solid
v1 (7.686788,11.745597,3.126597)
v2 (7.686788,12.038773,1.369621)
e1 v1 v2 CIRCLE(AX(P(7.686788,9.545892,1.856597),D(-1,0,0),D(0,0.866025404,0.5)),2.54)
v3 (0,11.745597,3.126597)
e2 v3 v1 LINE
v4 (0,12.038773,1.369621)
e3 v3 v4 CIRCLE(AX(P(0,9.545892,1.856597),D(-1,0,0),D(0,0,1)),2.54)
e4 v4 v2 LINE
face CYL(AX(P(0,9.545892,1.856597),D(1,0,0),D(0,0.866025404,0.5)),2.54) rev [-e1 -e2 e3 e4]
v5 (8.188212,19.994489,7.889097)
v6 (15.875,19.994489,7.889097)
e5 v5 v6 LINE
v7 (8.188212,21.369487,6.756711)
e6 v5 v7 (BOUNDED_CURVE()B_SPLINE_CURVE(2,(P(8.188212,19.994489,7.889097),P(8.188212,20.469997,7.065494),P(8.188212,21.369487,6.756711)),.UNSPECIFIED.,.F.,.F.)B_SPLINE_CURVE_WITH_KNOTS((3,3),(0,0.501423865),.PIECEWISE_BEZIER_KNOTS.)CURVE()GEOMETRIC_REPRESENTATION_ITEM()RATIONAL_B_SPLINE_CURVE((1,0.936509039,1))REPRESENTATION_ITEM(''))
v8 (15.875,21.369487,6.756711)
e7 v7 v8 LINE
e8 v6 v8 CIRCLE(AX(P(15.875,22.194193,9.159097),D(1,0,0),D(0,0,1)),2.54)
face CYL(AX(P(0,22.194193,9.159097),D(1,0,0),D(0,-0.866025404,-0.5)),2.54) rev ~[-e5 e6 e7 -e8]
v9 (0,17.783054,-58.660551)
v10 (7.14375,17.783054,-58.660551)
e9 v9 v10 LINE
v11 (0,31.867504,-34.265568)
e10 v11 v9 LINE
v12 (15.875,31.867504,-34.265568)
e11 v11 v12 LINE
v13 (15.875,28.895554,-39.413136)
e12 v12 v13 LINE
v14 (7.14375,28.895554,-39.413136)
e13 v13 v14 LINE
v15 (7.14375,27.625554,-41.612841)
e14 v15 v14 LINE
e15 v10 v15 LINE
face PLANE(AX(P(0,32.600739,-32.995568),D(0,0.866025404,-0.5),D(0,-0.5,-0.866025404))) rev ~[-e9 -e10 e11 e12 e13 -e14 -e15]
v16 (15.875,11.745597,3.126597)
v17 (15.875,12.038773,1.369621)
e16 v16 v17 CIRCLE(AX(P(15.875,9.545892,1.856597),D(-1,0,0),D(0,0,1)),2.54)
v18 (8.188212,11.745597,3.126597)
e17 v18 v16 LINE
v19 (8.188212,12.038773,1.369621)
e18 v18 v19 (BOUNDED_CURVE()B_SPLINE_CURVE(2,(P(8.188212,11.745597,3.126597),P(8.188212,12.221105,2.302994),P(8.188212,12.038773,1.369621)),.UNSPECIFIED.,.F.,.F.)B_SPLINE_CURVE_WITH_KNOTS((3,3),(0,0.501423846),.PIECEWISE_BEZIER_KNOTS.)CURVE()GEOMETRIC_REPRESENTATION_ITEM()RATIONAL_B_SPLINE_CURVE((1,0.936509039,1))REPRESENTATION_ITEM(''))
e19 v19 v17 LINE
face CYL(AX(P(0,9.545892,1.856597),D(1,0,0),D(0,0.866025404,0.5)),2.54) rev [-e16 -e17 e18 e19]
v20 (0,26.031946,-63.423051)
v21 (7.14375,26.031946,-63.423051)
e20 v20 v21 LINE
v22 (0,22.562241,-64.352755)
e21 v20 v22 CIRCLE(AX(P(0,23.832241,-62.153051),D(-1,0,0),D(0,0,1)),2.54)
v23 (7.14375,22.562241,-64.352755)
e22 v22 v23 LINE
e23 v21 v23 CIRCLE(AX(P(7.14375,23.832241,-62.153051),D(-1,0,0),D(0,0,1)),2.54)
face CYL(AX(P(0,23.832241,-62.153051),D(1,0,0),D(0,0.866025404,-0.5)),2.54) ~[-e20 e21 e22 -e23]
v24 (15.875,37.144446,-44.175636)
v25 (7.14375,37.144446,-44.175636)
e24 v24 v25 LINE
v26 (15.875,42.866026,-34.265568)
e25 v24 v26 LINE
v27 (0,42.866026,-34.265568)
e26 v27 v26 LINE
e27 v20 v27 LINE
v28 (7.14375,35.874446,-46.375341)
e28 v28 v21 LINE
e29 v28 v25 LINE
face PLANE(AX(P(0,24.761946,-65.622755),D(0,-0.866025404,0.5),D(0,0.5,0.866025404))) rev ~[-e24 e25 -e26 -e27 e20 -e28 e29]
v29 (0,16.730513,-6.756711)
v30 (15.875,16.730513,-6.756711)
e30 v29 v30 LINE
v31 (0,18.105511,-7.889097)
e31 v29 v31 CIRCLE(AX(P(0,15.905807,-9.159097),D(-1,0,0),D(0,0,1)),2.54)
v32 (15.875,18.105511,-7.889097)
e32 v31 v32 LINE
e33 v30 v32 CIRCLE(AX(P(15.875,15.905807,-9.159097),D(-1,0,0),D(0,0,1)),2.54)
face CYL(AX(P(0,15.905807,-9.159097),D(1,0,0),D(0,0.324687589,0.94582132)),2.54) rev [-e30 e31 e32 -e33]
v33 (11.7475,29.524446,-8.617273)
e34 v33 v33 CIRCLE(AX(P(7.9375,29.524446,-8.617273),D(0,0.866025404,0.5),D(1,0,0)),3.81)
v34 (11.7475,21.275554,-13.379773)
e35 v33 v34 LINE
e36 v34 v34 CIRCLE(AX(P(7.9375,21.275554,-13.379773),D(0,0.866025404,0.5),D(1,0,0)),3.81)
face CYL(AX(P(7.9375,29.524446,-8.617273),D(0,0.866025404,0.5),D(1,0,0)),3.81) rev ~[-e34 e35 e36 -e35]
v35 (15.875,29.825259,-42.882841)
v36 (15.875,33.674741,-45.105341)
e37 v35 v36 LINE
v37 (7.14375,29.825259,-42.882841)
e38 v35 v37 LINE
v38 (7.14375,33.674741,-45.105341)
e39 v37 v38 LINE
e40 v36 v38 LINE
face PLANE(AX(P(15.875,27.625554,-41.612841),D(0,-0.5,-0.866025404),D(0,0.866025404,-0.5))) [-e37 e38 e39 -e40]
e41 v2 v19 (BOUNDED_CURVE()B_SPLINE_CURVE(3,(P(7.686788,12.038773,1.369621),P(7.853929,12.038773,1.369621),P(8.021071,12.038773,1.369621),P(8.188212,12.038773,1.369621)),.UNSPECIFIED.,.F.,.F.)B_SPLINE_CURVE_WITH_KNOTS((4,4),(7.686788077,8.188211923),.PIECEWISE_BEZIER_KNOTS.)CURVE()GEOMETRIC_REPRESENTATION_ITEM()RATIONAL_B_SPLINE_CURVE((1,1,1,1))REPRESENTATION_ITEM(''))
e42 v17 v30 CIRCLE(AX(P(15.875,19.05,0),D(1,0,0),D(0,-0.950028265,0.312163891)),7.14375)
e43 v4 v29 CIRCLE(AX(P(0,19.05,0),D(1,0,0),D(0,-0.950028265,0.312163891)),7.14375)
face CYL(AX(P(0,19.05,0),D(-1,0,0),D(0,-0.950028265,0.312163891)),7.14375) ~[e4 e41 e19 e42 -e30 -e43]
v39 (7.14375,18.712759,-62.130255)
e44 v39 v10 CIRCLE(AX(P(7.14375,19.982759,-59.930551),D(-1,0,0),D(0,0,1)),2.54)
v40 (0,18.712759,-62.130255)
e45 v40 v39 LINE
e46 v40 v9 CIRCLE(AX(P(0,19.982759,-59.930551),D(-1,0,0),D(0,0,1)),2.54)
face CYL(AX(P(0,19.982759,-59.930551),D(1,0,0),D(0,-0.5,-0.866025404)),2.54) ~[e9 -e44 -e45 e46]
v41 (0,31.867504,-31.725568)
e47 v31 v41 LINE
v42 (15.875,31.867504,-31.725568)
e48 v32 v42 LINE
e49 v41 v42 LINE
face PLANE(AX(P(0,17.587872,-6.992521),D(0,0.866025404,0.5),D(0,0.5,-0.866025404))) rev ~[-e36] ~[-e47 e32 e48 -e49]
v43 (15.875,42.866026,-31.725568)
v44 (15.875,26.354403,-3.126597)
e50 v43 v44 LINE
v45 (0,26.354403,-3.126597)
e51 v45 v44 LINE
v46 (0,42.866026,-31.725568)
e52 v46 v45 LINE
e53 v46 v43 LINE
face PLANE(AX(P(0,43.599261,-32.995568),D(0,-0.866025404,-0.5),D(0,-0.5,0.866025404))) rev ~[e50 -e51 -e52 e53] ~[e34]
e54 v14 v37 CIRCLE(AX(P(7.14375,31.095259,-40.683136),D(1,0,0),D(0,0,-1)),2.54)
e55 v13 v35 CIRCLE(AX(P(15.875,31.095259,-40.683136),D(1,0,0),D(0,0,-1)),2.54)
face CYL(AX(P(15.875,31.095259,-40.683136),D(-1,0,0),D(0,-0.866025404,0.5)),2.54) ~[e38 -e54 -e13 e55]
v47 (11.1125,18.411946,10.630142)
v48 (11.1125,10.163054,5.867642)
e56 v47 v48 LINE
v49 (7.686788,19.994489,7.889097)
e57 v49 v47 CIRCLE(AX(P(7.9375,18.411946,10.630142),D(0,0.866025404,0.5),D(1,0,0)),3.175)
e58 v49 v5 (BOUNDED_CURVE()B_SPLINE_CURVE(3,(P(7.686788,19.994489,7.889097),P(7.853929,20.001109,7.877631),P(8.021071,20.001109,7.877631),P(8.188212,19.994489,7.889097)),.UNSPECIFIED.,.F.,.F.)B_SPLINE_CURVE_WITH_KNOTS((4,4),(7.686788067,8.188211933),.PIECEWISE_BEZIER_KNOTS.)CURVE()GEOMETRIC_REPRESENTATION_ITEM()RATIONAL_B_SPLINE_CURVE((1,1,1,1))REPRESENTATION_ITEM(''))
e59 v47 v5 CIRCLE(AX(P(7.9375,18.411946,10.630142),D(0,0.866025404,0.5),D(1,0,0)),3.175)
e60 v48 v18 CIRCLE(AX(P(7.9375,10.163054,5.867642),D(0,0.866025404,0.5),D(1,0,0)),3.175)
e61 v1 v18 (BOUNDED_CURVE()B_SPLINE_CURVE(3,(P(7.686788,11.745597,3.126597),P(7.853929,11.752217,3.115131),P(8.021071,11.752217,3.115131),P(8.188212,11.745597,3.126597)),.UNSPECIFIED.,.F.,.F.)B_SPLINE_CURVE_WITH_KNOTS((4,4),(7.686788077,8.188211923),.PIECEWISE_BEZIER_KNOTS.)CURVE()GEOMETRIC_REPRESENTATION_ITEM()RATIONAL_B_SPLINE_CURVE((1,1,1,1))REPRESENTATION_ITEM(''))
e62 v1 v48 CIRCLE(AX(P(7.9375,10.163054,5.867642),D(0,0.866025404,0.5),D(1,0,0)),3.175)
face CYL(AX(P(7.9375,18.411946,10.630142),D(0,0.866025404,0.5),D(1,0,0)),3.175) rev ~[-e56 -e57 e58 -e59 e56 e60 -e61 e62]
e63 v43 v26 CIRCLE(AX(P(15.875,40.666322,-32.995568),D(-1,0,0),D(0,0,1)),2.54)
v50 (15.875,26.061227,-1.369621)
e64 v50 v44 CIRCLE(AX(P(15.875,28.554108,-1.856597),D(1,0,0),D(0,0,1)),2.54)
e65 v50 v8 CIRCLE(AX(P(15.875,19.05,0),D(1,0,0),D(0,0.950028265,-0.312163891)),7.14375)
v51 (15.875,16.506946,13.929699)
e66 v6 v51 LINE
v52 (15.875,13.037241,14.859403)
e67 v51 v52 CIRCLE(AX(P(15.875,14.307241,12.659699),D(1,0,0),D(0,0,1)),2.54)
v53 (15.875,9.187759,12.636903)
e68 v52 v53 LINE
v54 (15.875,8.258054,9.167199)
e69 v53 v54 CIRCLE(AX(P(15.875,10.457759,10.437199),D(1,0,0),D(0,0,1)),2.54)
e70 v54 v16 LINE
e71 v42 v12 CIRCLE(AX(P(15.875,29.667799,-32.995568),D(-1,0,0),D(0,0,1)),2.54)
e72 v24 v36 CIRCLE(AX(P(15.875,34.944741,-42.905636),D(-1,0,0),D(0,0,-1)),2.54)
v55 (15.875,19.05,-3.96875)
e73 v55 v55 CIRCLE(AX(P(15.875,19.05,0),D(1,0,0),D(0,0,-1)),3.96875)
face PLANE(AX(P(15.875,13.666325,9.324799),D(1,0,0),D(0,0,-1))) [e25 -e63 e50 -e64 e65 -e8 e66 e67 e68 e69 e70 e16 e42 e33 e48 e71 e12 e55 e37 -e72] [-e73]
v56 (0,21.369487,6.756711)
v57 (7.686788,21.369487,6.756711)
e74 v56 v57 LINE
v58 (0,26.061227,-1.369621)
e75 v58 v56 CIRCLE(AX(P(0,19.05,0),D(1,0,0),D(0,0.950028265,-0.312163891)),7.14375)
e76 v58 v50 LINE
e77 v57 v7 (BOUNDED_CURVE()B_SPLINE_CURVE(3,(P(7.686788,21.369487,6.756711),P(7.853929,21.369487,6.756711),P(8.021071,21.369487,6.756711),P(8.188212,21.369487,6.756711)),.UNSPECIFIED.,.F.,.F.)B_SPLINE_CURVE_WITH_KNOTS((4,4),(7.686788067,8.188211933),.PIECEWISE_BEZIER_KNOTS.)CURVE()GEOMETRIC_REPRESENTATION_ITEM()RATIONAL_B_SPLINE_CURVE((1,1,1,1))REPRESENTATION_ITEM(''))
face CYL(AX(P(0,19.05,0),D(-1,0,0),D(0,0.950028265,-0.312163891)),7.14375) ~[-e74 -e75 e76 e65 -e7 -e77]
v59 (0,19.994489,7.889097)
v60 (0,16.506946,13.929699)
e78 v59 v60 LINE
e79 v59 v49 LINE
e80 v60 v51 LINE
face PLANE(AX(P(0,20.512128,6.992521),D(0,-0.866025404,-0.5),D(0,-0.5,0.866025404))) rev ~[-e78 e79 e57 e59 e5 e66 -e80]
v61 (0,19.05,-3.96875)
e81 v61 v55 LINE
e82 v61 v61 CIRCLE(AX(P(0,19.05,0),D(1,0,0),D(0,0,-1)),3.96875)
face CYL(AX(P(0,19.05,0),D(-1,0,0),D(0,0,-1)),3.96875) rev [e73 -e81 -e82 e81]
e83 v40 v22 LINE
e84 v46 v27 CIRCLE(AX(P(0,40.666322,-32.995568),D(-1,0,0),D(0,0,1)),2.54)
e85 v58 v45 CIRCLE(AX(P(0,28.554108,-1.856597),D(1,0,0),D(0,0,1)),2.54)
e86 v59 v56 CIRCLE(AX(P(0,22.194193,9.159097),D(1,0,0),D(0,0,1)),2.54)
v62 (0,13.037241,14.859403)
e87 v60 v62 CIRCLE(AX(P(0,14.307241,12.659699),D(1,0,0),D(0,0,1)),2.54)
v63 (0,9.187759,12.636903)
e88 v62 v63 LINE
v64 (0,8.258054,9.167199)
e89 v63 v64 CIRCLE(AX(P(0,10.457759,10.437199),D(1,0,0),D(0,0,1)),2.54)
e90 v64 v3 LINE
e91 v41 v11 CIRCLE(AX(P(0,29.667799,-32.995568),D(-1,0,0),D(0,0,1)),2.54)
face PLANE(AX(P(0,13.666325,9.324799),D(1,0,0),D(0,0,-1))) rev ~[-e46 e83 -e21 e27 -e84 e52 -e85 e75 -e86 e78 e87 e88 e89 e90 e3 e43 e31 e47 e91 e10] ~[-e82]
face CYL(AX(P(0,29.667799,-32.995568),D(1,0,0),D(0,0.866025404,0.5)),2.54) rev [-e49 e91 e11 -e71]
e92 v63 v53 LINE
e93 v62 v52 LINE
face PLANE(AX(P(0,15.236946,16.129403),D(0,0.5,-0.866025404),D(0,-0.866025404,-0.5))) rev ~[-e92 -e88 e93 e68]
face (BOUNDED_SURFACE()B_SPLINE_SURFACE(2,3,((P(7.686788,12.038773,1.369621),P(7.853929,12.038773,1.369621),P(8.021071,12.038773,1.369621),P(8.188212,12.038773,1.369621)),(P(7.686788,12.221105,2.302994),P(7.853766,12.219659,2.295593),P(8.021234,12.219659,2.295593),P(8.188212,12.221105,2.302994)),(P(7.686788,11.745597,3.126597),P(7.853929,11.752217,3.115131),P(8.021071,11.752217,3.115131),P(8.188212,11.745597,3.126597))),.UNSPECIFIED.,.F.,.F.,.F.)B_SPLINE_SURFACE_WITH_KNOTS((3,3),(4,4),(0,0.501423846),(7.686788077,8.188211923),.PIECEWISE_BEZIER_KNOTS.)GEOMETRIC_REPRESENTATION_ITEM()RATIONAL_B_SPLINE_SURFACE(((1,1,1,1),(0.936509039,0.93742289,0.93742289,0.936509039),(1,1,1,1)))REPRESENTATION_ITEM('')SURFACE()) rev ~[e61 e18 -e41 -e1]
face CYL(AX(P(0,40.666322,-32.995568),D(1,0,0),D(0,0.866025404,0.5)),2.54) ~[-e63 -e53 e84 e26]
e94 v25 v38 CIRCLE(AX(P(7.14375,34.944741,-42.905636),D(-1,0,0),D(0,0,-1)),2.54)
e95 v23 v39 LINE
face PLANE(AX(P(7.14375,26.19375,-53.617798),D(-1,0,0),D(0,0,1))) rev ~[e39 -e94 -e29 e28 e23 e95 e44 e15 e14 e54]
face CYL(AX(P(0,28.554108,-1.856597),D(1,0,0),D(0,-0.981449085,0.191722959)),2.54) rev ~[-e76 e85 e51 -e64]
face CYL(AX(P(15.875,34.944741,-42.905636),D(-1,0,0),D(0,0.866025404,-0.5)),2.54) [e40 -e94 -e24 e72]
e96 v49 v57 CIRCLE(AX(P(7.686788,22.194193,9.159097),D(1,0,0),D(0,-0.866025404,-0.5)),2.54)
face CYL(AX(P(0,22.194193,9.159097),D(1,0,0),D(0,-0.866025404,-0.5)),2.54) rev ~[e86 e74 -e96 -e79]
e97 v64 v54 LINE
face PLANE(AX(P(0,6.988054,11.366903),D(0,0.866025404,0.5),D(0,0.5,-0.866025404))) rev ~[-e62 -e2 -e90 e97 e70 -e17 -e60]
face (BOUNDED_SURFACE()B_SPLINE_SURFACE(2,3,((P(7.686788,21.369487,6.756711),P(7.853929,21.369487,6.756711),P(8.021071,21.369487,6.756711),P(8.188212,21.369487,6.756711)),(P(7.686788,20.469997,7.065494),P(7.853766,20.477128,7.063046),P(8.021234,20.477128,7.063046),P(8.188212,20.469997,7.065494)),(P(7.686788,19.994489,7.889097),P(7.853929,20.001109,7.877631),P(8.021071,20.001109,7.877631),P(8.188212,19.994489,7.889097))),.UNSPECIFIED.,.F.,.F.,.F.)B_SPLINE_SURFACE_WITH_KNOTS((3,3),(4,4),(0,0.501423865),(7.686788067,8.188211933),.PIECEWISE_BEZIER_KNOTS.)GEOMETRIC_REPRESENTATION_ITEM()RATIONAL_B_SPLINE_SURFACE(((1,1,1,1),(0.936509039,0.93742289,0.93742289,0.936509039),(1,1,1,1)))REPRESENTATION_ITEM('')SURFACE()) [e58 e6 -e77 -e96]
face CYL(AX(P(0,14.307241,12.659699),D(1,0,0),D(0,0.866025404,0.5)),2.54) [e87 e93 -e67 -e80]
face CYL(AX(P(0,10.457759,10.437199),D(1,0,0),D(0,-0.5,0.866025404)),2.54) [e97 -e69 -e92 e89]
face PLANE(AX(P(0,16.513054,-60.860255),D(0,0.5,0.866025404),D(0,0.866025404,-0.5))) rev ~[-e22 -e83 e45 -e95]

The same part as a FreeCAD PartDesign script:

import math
import FreeCAD as App
import Part
import Sketcher
from FreeCAD import Vector
Q = App.Units.Quantity


def edges_at(feature, points):
    """Names of the edges that pass closest to the given points."""
    edges = feature.Shape.Edges
    near = lambda p: min(range(len(edges)), key=lambda i: edges[i].distToShape(Part.Vertex(*p))[0])
    return sorted({f"Edge{near(p) + 1}" for p in points})

doc = App.newDocument("Part")
body = doc.addObject("PartDesign::Body", "Body")

sketch1 = body.newObject("Sketcher::SketchObject", "Sketch")
sketch1.AttachmentSupport = (doc.getObject("YZ_Plane"), [""])
sketch1.MapMode = "FlatFace"
sketch1.addGeometry([
    Part.LineSegment(Vector(20.5, 7, 0), Vector(15.2, 16.1, 0)),
    Part.LineSegment(Vector(15.2, 16.1, 0), Vector(7, 11.4, 0)),
    Part.LineSegment(Vector(7, 11.4, 0), Vector(12.3, 2.2, 0)),
    Part.ArcOfCircle(Part.Circle(Vector(19.1, 0, 0), Vector(0, 0, 1), 7.1), math.radians(162), math.radians(258)),
    Part.LineSegment(Vector(17.6, -7, 0), Vector(32.6, -33, 0)),
    Part.LineSegment(Vector(32.6, -33, 0), Vector(16.5, -60.9, 0)),
    Part.LineSegment(Vector(16.5, -60.9, 0), Vector(24.8, -65.6, 0)),
    Part.LineSegment(Vector(24.8, -65.6, 0), Vector(43.6, -33, 0)),
    Part.LineSegment(Vector(43.6, -33, 0), Vector(25.8, -2.2, 0)),
    Part.ArcOfCircle(Part.Circle(Vector(19, 0, 0), Vector(0, 0, 1), 7.1), math.radians(-18), math.radians(78)),
    Part.Circle(Vector(19.1, 0, 0), Vector(0, 0, 1), 4),
], False)
sketch1.addConstraint([
    Sketcher.Constraint("Coincident", 0, 2, 1, 1),
    Sketcher.Constraint("Coincident", 1, 2, 2, 1),
    Sketcher.Constraint("Coincident", 2, 2, 3, 1),
    Sketcher.Constraint("Coincident", 3, 2, 4, 1),
    Sketcher.Constraint("Coincident", 4, 2, 5, 1),
    Sketcher.Constraint("Coincident", 5, 2, 6, 1),
    Sketcher.Constraint("Coincident", 6, 2, 7, 1),
    Sketcher.Constraint("Coincident", 7, 2, 8, 1),
    Sketcher.Constraint("Coincident", 8, 2, 9, 1),
    Sketcher.Constraint("Coincident", 9, 2, 0, 1),
    Sketcher.Constraint("Coincident", 9, 3, 3, 3),
    Sketcher.Constraint("Coincident", 10, 3, 3, 3),
    Sketcher.Constraint("Equal", 3, 9),
    Sketcher.Constraint("PointOnObject", 3, 3, -1),
    Sketcher.Constraint("Perpendicular", 0, 1),
    Sketcher.Constraint("Perpendicular", 1, 2),
    Sketcher.Constraint("Parallel", 2, 4),
    Sketcher.Constraint("Perpendicular", 5, 6),
    Sketcher.Constraint("Perpendicular", 6, 7),
    Sketcher.Constraint("Parallel", 4, 8),
    Sketcher.Constraint("Horizontal", 4, 2, 7, 2),
    Sketcher.Constraint("Equal", 0, 2),
    Sketcher.Constraint("Equal", 1, 6),
    Sketcher.Constraint("Diameter", 10, Q("0.3125 in")),
    Sketcher.Constraint("Angle", 0, Q("120 deg")),
    Sketcher.Constraint("Angle", 5, Q("-120 deg")),
    Sketcher.Constraint("Radius", 3, Q("0.28125 in")),
    Sketcher.Constraint("DistanceX", -1, 1, 3, 3, Q("0.75 in")),
    Sketcher.Constraint("Distance", 1, Q("0.375 in")),
    Sketcher.Constraint("DistanceY", 3, 2, 8, 2, Q("0.1875 in")),
    Sketcher.Constraint("Distance", 5, 32.175369),
    Sketcher.Constraint("DistanceX", -1, 1, 4, 2, 32.600739),
    Sketcher.Constraint("DistanceX", 1, 2, 2, 2, 5.275182),
])
pad1 = body.newObject("PartDesign::Pad", "Pad")
pad1.Profile = sketch1
pad1.Length = Q("0.625 in")

sketch2 = body.newObject("Sketcher::SketchObject", "Sketch001")
sketch2.Placement = App.Placement(Vector(0, 18.411946, 10.630142), App.Rotation(Vector(1, 0, 0), Vector(0, 0.5, -0.866025404), Vector(0, 0.866025404, 0.5), "ZXY"))
sketch2.addGeometry([
    Part.Circle(Vector(7.9, 0, 0), Vector(0, 0, 1), 3.2),
    Part.Circle(Vector(7.9, 22.2, 0), Vector(0, 0, 1), 3.8),
], False)
sketch2.addConstraint([
    Sketcher.Constraint("PointOnObject", 0, 3, -1),
    Sketcher.Constraint("Vertical", 0, 3, 1, 3),
    Sketcher.Constraint("Diameter", 1, Q("0.3 in")),
    Sketcher.Constraint("Diameter", 0, Q("0.25 in")),
    Sketcher.Constraint("DistanceX", -1, 1, 0, 3, Q("0.3125 in")),
    Sketcher.Constraint("DistanceY", -1, 1, 1, 3, Q("0.875 in")),
])
pocket1 = body.newObject("PartDesign::Pocket", "Pocket")
pocket1.Profile = sketch2
pocket1.Length = Q("0.375 in")

sketch3 = body.newObject("Sketcher::SketchObject", "Sketch002")
sketch3.AttachmentSupport = (doc.getObject("YZ_Plane"), [""])
sketch3.MapMode = "FlatFace"
sketch3.AttachmentOffset = App.Placement(Vector(0, 0, 0.625 * 25.4), App.Rotation())
sketch3.addGeometry([
    Part.LineSegment(Vector(17, -61, 0), Vector(25, -66, 0)),
    Part.LineSegment(Vector(25, -66, 0), Vector(36, -46, 0)),
    Part.LineSegment(Vector(36, -46, 0), Vector(28, -42, 0)),
    Part.LineSegment(Vector(28, -42, 0), Vector(17, -61, 0)),
], False)
sketch3.addConstraint([
    Sketcher.Constraint("Coincident", 0, 2, 1, 1),
    Sketcher.Constraint("Coincident", 1, 2, 2, 1),
    Sketcher.Constraint("Coincident", 2, 2, 3, 1),
    Sketcher.Constraint("Coincident", 3, 2, 0, 1),
    Sketcher.Constraint("Perpendicular", 0, 1),
    Sketcher.Constraint("Perpendicular", 1, 2),
    Sketcher.Constraint("Perpendicular", 2, 3),
    Sketcher.Constraint("Angle", 0, Q("-30 deg")),
    Sketcher.Constraint("Distance", 0, Q("0.375 in")),
    Sketcher.Constraint("Distance", 1, Q("0.875 in")),
    Sketcher.Constraint("DistanceY", 1, 2, -1, 1, 46.375341),
    Sketcher.Constraint("DistanceX", -1, 1, 0, 2, 24.761946),
])
pocket2 = body.newObject("PartDesign::Pocket", "Pocket001")
pocket2.Profile = sketch3
pocket2.Length = Q("0.34375 in")
doc.recompute()

fillet = body.newObject("PartDesign::Fillet", "Fillet")
fillet.Base = (pocket2, edges_at(pocket2, [
    (7.938, 6.988, 11.367),
    (7.938, 15.237, 16.129),
    (7.938, 20.512, 6.993),
    (7.938, 25.837, -2.23),
    (7.938, 43.599, -32.996),
    (7.938, 32.601, -32.996),
    (7.938, 17.588, -6.993),
    (7.938, 12.263, 2.23),
    (3.572, 24.762, -65.623),
    (3.572, 16.513, -60.86),
    (11.509, 35.874, -46.375),
    (11.509, 27.626, -41.613),
]))
fillet.Radius = Q("0.1 in")

doc.recompute()
